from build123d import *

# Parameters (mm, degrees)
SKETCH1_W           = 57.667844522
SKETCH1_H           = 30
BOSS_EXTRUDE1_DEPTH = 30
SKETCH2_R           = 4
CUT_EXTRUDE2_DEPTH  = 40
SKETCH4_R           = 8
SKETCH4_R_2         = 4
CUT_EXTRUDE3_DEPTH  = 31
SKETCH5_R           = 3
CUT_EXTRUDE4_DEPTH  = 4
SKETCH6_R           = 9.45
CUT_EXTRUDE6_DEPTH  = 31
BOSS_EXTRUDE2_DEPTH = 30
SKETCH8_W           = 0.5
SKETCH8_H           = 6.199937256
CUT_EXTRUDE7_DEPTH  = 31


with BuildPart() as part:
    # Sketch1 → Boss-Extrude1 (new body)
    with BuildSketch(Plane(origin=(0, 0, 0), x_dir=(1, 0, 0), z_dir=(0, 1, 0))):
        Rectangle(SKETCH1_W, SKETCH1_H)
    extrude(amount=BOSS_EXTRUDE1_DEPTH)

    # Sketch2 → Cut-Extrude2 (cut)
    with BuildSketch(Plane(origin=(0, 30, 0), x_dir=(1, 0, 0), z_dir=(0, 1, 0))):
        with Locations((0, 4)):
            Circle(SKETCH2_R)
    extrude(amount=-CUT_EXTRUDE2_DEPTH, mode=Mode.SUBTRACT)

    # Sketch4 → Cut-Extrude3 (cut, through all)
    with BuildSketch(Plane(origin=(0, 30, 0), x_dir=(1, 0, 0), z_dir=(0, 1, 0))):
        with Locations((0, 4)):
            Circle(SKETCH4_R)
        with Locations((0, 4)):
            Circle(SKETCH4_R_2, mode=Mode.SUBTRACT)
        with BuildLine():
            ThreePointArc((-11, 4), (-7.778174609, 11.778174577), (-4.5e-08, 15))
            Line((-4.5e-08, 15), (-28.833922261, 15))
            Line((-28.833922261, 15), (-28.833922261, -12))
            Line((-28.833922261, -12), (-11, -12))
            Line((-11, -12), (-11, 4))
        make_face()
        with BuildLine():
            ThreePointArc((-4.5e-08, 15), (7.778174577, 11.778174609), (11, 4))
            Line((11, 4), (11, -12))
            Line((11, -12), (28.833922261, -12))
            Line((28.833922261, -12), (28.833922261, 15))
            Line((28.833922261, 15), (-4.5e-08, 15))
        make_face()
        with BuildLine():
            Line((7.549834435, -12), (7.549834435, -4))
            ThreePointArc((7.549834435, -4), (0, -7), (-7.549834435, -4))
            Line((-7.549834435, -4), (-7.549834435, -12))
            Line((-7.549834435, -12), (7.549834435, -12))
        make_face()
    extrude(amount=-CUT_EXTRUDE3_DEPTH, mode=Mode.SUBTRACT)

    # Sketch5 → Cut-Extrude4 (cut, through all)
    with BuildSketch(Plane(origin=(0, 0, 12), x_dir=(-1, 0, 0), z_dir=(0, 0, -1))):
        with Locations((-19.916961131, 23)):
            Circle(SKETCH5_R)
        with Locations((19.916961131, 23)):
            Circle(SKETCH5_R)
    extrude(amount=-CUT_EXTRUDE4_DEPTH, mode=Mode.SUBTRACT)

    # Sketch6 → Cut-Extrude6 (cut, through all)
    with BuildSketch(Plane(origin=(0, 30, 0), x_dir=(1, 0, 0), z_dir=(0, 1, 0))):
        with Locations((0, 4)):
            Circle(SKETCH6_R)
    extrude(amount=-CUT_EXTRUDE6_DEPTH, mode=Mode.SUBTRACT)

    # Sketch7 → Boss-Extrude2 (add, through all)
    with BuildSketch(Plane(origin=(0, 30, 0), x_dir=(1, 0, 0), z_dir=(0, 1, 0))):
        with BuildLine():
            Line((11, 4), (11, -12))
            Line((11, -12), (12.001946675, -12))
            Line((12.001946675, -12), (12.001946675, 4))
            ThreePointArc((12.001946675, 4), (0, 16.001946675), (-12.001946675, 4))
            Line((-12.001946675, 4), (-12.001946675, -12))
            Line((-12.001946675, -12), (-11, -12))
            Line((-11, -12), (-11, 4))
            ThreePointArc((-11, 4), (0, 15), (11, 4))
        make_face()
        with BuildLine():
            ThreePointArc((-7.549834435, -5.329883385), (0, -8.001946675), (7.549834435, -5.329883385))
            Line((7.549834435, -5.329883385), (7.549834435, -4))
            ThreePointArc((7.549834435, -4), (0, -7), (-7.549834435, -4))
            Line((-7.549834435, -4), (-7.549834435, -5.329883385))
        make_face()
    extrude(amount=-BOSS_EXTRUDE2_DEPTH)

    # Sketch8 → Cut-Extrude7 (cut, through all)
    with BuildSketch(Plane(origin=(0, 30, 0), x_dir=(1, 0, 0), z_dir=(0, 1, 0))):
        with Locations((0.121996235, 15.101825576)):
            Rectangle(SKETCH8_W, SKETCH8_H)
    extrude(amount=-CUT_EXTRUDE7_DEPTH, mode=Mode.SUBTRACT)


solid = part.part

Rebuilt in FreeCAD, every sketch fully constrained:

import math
import FreeCAD as App
import Part
import Sketcher

V = App.Vector
Q = App.Units.Quantity

doc = App.newDocument("Part")
body = doc.addObject("PartDesign::Body", "Body")

# Sketch on XZ plane
sketch1 = body.newObject("Sketcher::SketchObject", "Sketch")
sketch1.AttachmentSupport = (doc.getObject("XZ_Plane"), [""])
sketch1.MapMode = "FlatFace"
sketch1.addGeometry([
    Part.LineSegment(V(-29, -15, 0), V(-29, 15, 0)),
    Part.LineSegment(V(-29, 15, 0), V(29, 15, 0)),
    Part.LineSegment(V(29, 15, 0), V(29, -15, 0)),
    Part.LineSegment(V(29, -15, 0), V(-29, -15, 0)),
], False)
sketch1.addConstraint([
    Sketcher.Constraint("Coincident", 0, 2, 1, 1),
    Sketcher.Constraint("Coincident", 1, 2, 2, 1),
    Sketcher.Constraint("Coincident", 2, 2, 3, 1),
    Sketcher.Constraint("Coincident", 3, 2, 0, 1),
    Sketcher.Constraint("Vertical", 0),
    Sketcher.Constraint("Horizontal", 1),
    Sketcher.Constraint("Vertical", 2),
    Sketcher.Constraint("Horizontal", 3),
    Sketcher.Constraint("Symmetric", 0, 2, 2, 2, -1, 1),
    Sketcher.Constraint("DistanceY", 0, 1, 0, 2, Q("30 mm")),
    Sketcher.Constraint("DistanceX", 1, 1, 1, 2, Q("57.667845 mm")),
])
pad1 = body.newObject("PartDesign::Pad", "Pad")
pad1.Profile = sketch1
pad1.Length = 30
pad1.Reversed = True

# Sketch on XZ plane
sketch2 = body.newObject("Sketcher::SketchObject", "Sketch001")
sketch2.AttachmentSupport = (doc.getObject("XZ_Plane"), [""])
sketch2.MapMode = "FlatFace"
sketch2.AttachmentOffset = App.Placement(V(0, 0, -30), App.Rotation())
sketch2.addGeometry(Part.Circle(V(0, -4, 0), V(0, 0, 1), 4), False)
sketch2.addConstraint([
    Sketcher.Constraint("PointOnObject", 0, 3, -2),
    Sketcher.Constraint("Diameter", 0, Q("8 mm")),
    Sketcher.Constraint("DistanceY", 0, 3, -1, 1, Q("4 mm")),
])
pocket1 = body.newObject("PartDesign::Pocket", "Pocket")
pocket1.Profile = sketch2
pocket1.Length = 40
pocket1.Reversed = True

# Sketch on XZ plane
sketch3 = body.newObject("Sketcher::SketchObject", "Sketch002")
sketch3.AttachmentSupport = (doc.getObject("XZ_Plane"), [""])
sketch3.MapMode = "FlatFace"
sketch3.AttachmentOffset = App.Placement(V(0, 0, -30), App.Rotation())
sketch3.addGeometry([
    Part.Circle(V(0, -4, 0), V(0, 0, 1), 8),  # 0
    Part.Circle(V(0, -4, 0), V(0, 0, 1), 4),  # 1
    Part.ArcOfCircle(Part.Circle(V(0, -4, 0), V(0, 0, 1), 11), math.radians(180), math.radians(270)),  # 2
    Part.LineSegment(V(0, -15, 0), V(-28.8, -15, 0)),  # 3
    Part.LineSegment(V(-28.8, -15, 0), V(-28.8, 12, 0)),  # 4
    Part.LineSegment(V(-28.8, 12, 0), V(-11, 12, 0)),  # 5
    Part.LineSegment(V(-11, 12, 0), V(-11, -4, 0)),  # 6
    Part.ArcOfCircle(Part.Circle(V(0, -4, 0), V(0, 0, 1), 11), math.radians(-90), math.radians(0)),  # 7
    Part.LineSegment(V(11, -4, 0), V(11, 12, 0)),  # 8
    Part.LineSegment(V(11, 12, 0), V(28.8, 12, 0)),  # 9
    Part.LineSegment(V(28.8, 12, 0), V(28.8, -15, 0)),  # 10
    Part.LineSegment(V(28.8, -15, 0), V(0, -15, 0)),  # 11
    Part.LineSegment(V(7.5, 12, 0), V(7.5, 4, 0)),  # 12
    Part.ArcOfCircle(Part.Circle(V(0, -4, 0), V(0, 0, 1), 11), math.radians(47), math.radians(133)),  # 13
    Part.LineSegment(V(-7.5, 4, 0), V(-7.5, 12, 0)),  # 14
    Part.LineSegment(V(-7.5, 12, 0), V(7.5, 12, 0)),  # 15
], False)
sketch3.addConstraint([
    Sketcher.Constraint("Tangent", 2, 2, 3, 1),
    Sketcher.Constraint("Coincident", 3, 2, 4, 1),
    Sketcher.Constraint("Coincident", 4, 2, 5, 1),
    Sketcher.Constraint("Coincident", 5, 2, 6, 1),
    Sketcher.Constraint("Tangent", 6, 2, 2, 1),
    Sketcher.Constraint("Tangent", 7, 2, 8, 1),
    Sketcher.Constraint("Coincident", 8, 2, 9, 1),
    Sketcher.Constraint("Coincident", 9, 2, 10, 1),
    Sketcher.Constraint("Coincident", 10, 2, 11, 1),
    Sketcher.Constraint("Tangent", 11, 2, 7, 1),
    Sketcher.Constraint("Coincident", 12, 2, 13, 1),
    Sketcher.Constraint("Coincident", 13, 2, 14, 1),
    Sketcher.Constraint("Coincident", 14, 2, 15, 1),
    Sketcher.Constraint("Coincident", 15, 2, 12, 1),
    Sketcher.Constraint("Horizontal", 3),
    Sketcher.Constraint("Vertical", 4),
    Sketcher.Constraint("Horizontal", 5),
    Sketcher.Constraint("Vertical", 6),
    Sketcher.Constraint("Vertical", 8),
    Sketcher.Constraint("Horizontal", 9),
    Sketcher.Constraint("Vertical", 10),
    Sketcher.Constraint("Horizontal", 11),
    Sketcher.Constraint("Vertical", 12),
    Sketcher.Constraint("Vertical", 14),
    Sketcher.Constraint("Horizontal", 15),
    Sketcher.Constraint("Coincident", 1, 3, 0, 3),
    Sketcher.Constraint("Coincident", 2, 3, 0, 3),
    Sketcher.Constraint("Coincident", 7, 3, 0, 3),
    Sketcher.Constraint("Coincident", 13, 3, 0, 3),
    Sketcher.Constraint("Equal", 2, 7),
    Sketcher.Constraint("Equal", 7, 13),
    Sketcher.Constraint("Symmetric", 5, 2, 8, 2, -2),
    Sketcher.Constraint("Horizontal", 12, 2, 13, 2),
    Sketcher.Constraint("Horizontal", 9, 2, 14, 2),
    Sketcher.Constraint("Equal", 5, 9),
    Sketcher.Constraint("Diameter", 0, Q("16 mm")),
    Sketcher.Constraint("Diameter", 1, Q("8 mm")),
    Sketcher.Constraint("Radius", 2, Q("11 mm")),
    Sketcher.Constraint("DistanceY", 4, 1, 4, 2, Q("27 mm")),
    Sketcher.Constraint("DistanceY", 12, 2, 12, 1, Q("8 mm")),
    Sketcher.Constraint("DistanceY", 0, 3, -1, 1, Q("4 mm")),
    Sketcher.Constraint("DistanceX", 3, 2, 3, 1, Q("28.833922 mm")),
])
pocket2 = body.newObject("PartDesign::Pocket", "Pocket001")
pocket2.Profile = sketch3
pocket2.Type = "ThroughAll"
pocket2.Reversed = True

# Sketch on XY plane
sketch4 = body.newObject("Sketcher::SketchObject", "Sketch003")
sketch4.AttachmentSupport = (doc.getObject("XY_Plane"), [""])
sketch4.MapMode = "FlatFace"
sketch4.AttachmentOffset = App.Placement(V(0, 0, 12), App.Rotation())
sketch4.addGeometry([
    Part.Circle(V(19.9, 23, 0), V(0, 0, 1), 3),
    Part.Circle(V(-19.9, 23, 0), V(0, 0, 1), 3),
], False)
sketch4.addConstraint([
    Sketcher.Constraint("Equal", 0, 1),
    Sketcher.Constraint("Symmetric", 0, 3, 1, 3, -2),
    Sketcher.Constraint("Diameter", 0, Q("6 mm")),
    Sketcher.Constraint("DistanceY", -1, 1, 0, 3, Q("23 mm")),
    Sketcher.Constraint("DistanceX", -1, 1, 0, 3, Q("19.916961 mm")),
])
pocket3 = body.newObject("PartDesign::Pocket", "Pocket002")
pocket3.Profile = sketch4
pocket3.Type = "ThroughAll"
pocket3.Reversed = True

# Sketch on XZ plane
sketch5 = body.newObject("Sketcher::SketchObject", "Sketch004")
sketch5.AttachmentSupport = (doc.getObject("XZ_Plane"), [""])
sketch5.MapMode = "FlatFace"
sketch5.AttachmentOffset = App.Placement(V(0, 0, -30), App.Rotation())
sketch5.addGeometry(Part.Circle(V(0, -4, 0), V(0, 0, 1), 9), False)
sketch5.addConstraint([
    Sketcher.Constraint("PointOnObject", 0, 3, -2),
    Sketcher.Constraint("Diameter", 0, Q("18.9 mm")),
    Sketcher.Constraint("DistanceY", 0, 3, -1, 1, Q("4 mm")),
])
pocket4 = body.newObject("PartDesign::Pocket", "Pocket003")
pocket4.Profile = sketch5
pocket4.Type = "ThroughAll"
pocket4.Reversed = True

# Sketch on XZ plane
sketch6 = body.newObject("Sketcher::SketchObject", "Sketch005")
sketch6.AttachmentSupport = (doc.getObject("XZ_Plane"), [""])
sketch6.MapMode = "FlatFace"
sketch6.AttachmentOffset = App.Placement(V(0, 0, -30), App.Rotation())
sketch6.addGeometry([
    Part.LineSegment(V(11, -4, 0), V(11, 12, 0)),  # 0
    Part.LineSegment(V(11, 12, 0), V(12, 12, 0)),  # 1
    Part.LineSegment(V(12, 12, 0), V(12, -4, 0)),  # 2
    Part.ArcOfCircle(Part.Circle(V(0, -4, 0), V(0, 0, 1), 12), math.radians(180), math.radians(360)),  # 3
    Part.LineSegment(V(-12, -4, 0), V(-12, 12, 0)),  # 4
    Part.LineSegment(V(-12, 12, 0), V(-11, 12, 0)),  # 5
    Part.LineSegment(V(-11, 12, 0), V(-11, -4, 0)),  # 6
    Part.ArcOfCircle(Part.Circle(V(0, -4, 0), V(0, 0, 1), 11), math.radians(180), math.radians(360)),  # 7
    Part.ArcOfCircle(Part.Circle(V(0, -4, 0), V(0, 0, 1), 12), math.radians(51), math.radians(129)),  # 8
    Part.LineSegment(V(7.5, 5.3, 0), V(7.5, 4, 0)),  # 9
    Part.ArcOfCircle(Part.Circle(V(0, -4, 0), V(0, 0, 1), 11), math.radians(47), math.radians(133)),  # 10
    Part.LineSegment(V(-7.5, 4, 0), V(-7.5, 5.3, 0)),  # 11
], False)
sketch6.addConstraint([
    Sketcher.Constraint("Coincident", 0, 2, 1, 1),
    Sketcher.Constraint("Coincident", 1, 2, 2, 1),
    Sketcher.Constraint("Tangent", 2, 2, 3, 2),
    Sketcher.Constraint("Tangent", 3, 1, 4, 1),
    Sketcher.Constraint("Coincident", 4, 2, 5, 1),
    Sketcher.Constraint("Coincident", 5, 2, 6, 1),
    Sketcher.Constraint("Tangent", 6, 2, 7, 1),
    Sketcher.Constraint("Tangent", 7, 2, 0, 1),
    Sketcher.Constraint("Coincident", 8, 1, 9, 1),
    Sketcher.Constraint("Coincident", 9, 2, 10, 1),
    Sketcher.Constraint("Coincident", 10, 2, 11, 1),
    Sketcher.Constraint("Coincident", 11, 2, 8, 2),
    Sketcher.Constraint("Vertical", 0),
    Sketcher.Constraint("Horizontal", 1),
    Sketcher.Constraint("Vertical", 2),
    Sketcher.Constraint("Vertical", 4),
    Sketcher.Constraint("Horizontal", 5),
    Sketcher.Constraint("Vertical", 6),
    Sketcher.Constraint("Vertical", 9),
    Sketcher.Constraint("Vertical", 11),
    Sketcher.Constraint("Coincident", 7, 3, 3, 3),
    Sketcher.Constraint("Coincident", 8, 3, 3, 3),
    Sketcher.Constraint("Coincident", 10, 3, 3, 3),
    Sketcher.Constraint("Equal", 3, 8),
    Sketcher.Constraint("Equal", 7, 10),
    Sketcher.Constraint("Symmetric", 1, 2, 4, 2, -2),
    Sketcher.Constraint("Horizontal", 9, 2, 10, 2),
    Sketcher.Constraint("Radius", 7, Q("11 mm")),
    Sketcher.Constraint("DistanceY", 0, 1, 0, 2, Q("16 mm")),
    Sketcher.Constraint("DistanceY", 3, 3, -1, 1, Q("4 mm")),
    Sketcher.Constraint("DistanceY", -1, 1, 9, 2, Q("4 mm")),
    Sketcher.Constraint("Radius", 3, Q("12.001947 mm")),
])
pad2 = body.newObject("PartDesign::Pad", "Pad001")
pad2.Profile = sketch6
pad2.Length = 30

# Sketch on XZ plane
sketch7 = body.newObject("Sketcher::SketchObject", "Sketch006")
sketch7.AttachmentSupport = (doc.getObject("XZ_Plane"), [""])
sketch7.MapMode = "FlatFace"
sketch7.AttachmentOffset = App.Placement(V(0, 0, -30), App.Rotation())
sketch7.addGeometry([
    Part.LineSegment(V(-0.1, -18.2, 0), V(-0.1, -12, 0)),
    Part.LineSegment(V(-0.1, -12, 0), V(0.4, -12, 0)),
    Part.LineSegment(V(0.4, -12, 0), V(0.4, -18.2, 0)),
    Part.LineSegment(V(0.4, -18.2, 0), V(-0.1, -18.2, 0)),
], False)
sketch7.addConstraint([
    Sketcher.Constraint("Coincident", 0, 2, 1, 1),
    Sketcher.Constraint("Coincident", 1, 2, 2, 1),
    Sketcher.Constraint("Coincident", 2, 2, 3, 1),
    Sketcher.Constraint("Coincident", 3, 2, 0, 1),
    Sketcher.Constraint("Vertical", 0),
    Sketcher.Constraint("Horizontal", 1),
    Sketcher.Constraint("Vertical", 2),
    Sketcher.Constraint("Horizontal", 3),
    Sketcher.Constraint("DistanceX", 1, 1, 1, 2, Q("0.5 mm")),
    Sketcher.Constraint("DistanceY", 0, 1, 0, 2, Q("6.199937 mm")),
    Sketcher.Constraint("DistanceX", 0, 2, -1, 1, Q("0.128004 mm")),
    Sketcher.Constraint("DistanceY", 0, 2, -1, 1, Q("12.001857 mm")),
])
pocket5 = body.newObject("PartDesign::Pocket", "Pocket004")
pocket5.Profile = sketch7
pocket5.Type = "ThroughAll"
pocket5.Reversed = True

doc.recompute()
